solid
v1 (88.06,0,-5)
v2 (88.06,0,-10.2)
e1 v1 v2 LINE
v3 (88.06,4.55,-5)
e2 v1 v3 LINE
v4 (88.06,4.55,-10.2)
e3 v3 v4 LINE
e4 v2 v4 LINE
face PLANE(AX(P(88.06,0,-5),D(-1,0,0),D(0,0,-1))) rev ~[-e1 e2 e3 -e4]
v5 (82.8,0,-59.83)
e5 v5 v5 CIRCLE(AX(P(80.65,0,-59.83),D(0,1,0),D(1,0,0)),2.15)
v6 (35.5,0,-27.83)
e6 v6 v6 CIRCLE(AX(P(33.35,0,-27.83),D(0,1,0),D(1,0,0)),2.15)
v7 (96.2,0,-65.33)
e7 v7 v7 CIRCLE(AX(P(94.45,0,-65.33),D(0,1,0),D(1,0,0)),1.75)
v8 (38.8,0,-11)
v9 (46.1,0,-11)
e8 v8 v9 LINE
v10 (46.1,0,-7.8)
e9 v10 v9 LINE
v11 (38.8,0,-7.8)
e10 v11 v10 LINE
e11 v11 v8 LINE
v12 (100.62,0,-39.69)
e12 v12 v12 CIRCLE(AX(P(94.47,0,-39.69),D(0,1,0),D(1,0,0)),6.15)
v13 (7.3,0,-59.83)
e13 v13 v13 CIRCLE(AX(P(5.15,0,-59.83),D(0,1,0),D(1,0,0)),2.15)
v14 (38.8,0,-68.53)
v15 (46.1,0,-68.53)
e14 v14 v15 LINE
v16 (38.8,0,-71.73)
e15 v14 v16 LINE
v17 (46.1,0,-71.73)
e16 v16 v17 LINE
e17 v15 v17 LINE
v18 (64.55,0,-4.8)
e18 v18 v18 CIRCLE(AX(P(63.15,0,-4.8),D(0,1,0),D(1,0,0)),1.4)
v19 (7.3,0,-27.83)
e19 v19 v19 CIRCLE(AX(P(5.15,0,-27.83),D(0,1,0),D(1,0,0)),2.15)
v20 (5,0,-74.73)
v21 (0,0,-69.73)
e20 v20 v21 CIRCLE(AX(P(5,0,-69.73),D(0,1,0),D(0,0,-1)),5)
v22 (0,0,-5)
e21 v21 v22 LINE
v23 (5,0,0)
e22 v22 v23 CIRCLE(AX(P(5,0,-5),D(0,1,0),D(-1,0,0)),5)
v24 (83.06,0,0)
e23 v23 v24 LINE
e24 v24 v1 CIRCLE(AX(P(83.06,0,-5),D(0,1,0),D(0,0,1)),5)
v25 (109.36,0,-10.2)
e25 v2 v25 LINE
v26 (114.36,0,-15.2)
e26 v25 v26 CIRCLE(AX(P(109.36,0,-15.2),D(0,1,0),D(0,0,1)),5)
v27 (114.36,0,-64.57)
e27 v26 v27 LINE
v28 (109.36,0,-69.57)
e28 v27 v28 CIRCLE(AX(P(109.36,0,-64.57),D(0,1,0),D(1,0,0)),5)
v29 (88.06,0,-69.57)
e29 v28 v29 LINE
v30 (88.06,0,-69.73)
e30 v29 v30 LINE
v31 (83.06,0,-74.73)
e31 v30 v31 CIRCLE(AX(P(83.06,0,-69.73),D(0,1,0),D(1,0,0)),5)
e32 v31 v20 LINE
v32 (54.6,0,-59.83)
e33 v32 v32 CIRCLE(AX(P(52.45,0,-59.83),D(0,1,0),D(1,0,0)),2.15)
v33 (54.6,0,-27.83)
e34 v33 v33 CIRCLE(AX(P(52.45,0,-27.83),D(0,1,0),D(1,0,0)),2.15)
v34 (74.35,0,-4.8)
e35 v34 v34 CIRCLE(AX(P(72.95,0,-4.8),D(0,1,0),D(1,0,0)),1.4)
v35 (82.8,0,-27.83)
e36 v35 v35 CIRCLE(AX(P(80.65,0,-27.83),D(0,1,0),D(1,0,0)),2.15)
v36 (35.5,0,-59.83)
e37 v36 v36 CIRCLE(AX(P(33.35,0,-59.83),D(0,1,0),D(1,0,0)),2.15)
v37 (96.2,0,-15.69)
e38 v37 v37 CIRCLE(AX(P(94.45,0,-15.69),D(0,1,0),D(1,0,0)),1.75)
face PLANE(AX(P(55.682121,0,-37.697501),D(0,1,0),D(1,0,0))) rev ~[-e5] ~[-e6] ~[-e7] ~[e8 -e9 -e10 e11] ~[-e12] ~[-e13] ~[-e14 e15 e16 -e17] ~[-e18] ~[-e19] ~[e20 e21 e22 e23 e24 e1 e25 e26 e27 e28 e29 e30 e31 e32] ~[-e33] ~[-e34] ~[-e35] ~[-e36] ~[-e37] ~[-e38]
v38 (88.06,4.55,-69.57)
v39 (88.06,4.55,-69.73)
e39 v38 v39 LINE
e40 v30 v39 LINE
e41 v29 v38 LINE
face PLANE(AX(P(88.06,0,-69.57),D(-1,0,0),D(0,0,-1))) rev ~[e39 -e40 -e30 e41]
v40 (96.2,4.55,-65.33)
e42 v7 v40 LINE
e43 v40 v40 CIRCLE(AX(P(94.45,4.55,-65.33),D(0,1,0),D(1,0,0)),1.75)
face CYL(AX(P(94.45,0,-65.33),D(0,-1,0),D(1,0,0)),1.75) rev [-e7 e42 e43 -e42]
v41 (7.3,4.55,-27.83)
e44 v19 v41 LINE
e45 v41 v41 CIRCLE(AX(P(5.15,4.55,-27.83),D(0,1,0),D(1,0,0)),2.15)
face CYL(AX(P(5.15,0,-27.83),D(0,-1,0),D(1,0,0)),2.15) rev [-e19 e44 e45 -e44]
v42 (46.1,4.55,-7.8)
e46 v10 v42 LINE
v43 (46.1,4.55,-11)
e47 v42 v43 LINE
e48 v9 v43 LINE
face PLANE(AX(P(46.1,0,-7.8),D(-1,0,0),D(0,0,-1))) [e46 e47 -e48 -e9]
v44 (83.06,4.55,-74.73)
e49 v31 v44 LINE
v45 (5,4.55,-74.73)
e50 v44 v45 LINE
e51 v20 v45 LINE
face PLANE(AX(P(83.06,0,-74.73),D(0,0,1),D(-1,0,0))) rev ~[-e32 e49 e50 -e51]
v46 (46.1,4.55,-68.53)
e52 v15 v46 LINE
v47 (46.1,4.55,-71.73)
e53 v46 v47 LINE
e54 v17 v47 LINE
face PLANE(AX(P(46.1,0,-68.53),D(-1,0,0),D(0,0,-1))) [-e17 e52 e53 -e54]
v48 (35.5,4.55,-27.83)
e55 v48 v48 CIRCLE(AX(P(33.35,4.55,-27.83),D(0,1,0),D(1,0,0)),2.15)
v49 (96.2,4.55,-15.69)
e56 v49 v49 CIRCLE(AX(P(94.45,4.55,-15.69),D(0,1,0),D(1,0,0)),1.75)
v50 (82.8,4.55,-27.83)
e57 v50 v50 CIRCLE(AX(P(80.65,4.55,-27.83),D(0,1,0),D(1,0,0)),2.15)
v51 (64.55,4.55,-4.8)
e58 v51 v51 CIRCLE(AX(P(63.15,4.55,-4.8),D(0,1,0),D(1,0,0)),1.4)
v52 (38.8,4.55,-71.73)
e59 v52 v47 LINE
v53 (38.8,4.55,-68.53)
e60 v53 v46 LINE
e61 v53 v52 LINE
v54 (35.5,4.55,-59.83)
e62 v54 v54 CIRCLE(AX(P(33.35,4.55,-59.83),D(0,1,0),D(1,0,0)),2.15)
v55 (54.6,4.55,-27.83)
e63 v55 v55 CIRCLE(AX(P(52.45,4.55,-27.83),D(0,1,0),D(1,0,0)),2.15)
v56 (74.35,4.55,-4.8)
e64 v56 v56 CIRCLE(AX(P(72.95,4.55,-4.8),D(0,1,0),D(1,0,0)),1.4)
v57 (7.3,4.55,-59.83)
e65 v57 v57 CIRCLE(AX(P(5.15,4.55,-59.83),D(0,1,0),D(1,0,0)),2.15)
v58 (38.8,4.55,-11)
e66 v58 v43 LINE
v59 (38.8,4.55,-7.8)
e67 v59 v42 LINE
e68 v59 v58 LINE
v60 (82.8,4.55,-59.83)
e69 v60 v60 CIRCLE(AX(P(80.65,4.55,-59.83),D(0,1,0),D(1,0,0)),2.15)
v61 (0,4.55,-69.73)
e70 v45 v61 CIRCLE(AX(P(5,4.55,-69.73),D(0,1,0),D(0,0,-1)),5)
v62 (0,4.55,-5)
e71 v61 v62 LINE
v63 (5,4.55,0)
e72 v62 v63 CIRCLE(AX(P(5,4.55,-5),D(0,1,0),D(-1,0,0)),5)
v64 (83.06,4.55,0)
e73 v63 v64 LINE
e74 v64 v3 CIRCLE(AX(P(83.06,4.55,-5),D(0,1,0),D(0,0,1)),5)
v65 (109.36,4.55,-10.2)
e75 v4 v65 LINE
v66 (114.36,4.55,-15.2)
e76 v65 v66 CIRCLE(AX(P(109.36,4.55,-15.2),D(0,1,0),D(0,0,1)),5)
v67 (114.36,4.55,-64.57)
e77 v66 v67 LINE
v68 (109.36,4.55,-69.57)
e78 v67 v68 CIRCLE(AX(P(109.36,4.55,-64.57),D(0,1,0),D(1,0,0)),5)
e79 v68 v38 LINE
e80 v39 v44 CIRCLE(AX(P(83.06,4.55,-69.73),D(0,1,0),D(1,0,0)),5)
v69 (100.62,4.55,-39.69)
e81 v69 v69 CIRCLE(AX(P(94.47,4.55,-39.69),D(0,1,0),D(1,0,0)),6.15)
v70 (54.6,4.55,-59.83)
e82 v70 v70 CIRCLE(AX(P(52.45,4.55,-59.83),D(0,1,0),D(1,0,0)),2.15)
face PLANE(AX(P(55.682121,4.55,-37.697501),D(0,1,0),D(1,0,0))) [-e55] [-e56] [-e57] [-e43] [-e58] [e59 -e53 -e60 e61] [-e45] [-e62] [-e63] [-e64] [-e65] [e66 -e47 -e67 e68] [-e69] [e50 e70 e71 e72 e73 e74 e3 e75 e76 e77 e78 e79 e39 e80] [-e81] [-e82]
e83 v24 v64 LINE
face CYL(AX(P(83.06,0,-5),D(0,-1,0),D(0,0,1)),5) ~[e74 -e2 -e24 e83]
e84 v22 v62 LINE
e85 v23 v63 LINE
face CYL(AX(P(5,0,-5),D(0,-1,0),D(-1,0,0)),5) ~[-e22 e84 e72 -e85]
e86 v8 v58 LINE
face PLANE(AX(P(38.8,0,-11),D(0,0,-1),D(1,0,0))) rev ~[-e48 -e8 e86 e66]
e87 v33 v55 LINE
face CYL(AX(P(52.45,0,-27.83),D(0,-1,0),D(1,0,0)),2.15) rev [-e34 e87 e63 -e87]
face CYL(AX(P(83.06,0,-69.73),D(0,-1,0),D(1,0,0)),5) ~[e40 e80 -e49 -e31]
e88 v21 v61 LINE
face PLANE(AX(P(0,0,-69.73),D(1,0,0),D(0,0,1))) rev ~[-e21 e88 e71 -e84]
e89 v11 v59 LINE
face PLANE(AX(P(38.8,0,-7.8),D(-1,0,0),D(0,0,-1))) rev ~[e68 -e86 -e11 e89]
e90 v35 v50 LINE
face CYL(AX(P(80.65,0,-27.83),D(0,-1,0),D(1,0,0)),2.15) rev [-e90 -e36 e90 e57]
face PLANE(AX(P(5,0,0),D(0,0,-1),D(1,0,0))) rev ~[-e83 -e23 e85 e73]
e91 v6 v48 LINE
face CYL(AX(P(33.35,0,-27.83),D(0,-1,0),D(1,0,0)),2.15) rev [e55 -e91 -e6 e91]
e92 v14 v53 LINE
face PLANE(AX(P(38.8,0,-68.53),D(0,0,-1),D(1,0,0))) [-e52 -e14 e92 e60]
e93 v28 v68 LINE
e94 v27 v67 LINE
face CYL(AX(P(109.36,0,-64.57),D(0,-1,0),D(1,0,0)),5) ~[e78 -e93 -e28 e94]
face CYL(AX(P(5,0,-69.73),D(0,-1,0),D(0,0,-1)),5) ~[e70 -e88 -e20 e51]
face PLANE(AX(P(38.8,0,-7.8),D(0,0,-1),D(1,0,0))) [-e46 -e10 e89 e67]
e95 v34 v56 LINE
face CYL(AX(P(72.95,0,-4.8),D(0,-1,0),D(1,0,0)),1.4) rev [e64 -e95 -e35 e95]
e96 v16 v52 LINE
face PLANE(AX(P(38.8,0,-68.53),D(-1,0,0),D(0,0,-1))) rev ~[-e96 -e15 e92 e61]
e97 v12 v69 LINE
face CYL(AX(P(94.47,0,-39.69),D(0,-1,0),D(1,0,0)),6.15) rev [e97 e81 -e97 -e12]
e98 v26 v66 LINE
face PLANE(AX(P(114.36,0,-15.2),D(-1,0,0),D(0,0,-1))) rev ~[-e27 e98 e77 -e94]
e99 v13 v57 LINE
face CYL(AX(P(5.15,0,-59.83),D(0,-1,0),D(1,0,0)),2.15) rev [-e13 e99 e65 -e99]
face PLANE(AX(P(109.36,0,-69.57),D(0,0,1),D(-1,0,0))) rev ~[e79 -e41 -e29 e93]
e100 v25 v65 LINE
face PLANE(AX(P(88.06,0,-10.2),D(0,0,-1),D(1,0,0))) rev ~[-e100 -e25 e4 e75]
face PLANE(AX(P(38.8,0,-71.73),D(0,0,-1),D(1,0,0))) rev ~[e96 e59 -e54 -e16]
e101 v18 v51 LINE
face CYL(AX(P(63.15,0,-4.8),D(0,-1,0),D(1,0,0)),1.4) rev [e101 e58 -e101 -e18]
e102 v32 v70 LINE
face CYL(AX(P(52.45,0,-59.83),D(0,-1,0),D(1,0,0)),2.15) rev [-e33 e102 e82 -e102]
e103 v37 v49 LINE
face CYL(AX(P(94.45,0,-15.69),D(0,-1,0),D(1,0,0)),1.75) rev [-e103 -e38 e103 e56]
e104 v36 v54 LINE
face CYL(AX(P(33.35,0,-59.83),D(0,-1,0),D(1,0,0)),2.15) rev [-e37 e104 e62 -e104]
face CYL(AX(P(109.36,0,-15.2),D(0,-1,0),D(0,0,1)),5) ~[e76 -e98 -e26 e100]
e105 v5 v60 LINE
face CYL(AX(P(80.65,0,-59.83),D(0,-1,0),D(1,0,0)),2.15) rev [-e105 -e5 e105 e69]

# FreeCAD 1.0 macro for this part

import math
import FreeCAD as App
import Part
import Sketcher


def add_polygon(sketch, points):
    """Adds a closed chain of lines whose ends are joined by coincident constraints."""
    first, n = sketch.GeometryCount, len(points)
    for a, b in zip(points, points[1:] + points[:1]):
        sketch.addGeometry(Part.LineSegment(App.Vector(*a, 0), App.Vector(*b, 0)), False)
    for i in range(n):
        sketch.addConstraint(Sketcher.Constraint("Coincident", first + i, 2, first + (i + 1) % n, 1))

doc = App.newDocument("Part")
body = doc.addObject("PartDesign::Body", "Body")

sketch1 = body.newObject("Sketcher::SketchObject", "Sketch")
sketch1.AttachmentSupport = (doc.getObject("XZ_Plane"), [""])
sketch1.MapMode = "FlatFace"
sketch1.addGeometry(Part.LineSegment(App.Vector(5, 0, 0), App.Vector(83.06, 0, 0)), False)
sketch1.addGeometry(Part.ArcOfCircle(Part.Circle(App.Vector(83.06, -5, 0), App.Vector(0, 0, 1), 5), math.radians(0), math.radians(90)), False)
sketch1.addGeometry(Part.LineSegment(App.Vector(88.06, -5, 0), App.Vector(88.06, -10.2, 0)), False)
sketch1.addGeometry(Part.LineSegment(App.Vector(88.06, -10.2, 0), App.Vector(109.36, -10.2, 0)), False)
sketch1.addGeometry(Part.ArcOfCircle(Part.Circle(App.Vector(109.36, -15.2, 0), App.Vector(0, 0, 1), 5), math.radians(0), math.radians(90)), False)
sketch1.addGeometry(Part.LineSegment(App.Vector(114.36, -15.2, 0), App.Vector(114.36, -64.57, 0)), False)
sketch1.addGeometry(Part.ArcOfCircle(Part.Circle(App.Vector(109.36, -64.57, 0), App.Vector(0, 0, 1), 5), math.radians(-90), math.radians(0)), False)
sketch1.addGeometry(Part.LineSegment(App.Vector(109.36, -69.57, 0), App.Vector(88.06, -69.57, 0)), False)
sketch1.addGeometry(Part.LineSegment(App.Vector(88.06, -69.57, 0), App.Vector(88.06, -69.73, 0)), False)
sketch1.addGeometry(Part.ArcOfCircle(Part.Circle(App.Vector(83.06, -69.73, 0), App.Vector(0, 0, 1), 5), math.radians(-90), math.radians(0)), False)
sketch1.addGeometry(Part.LineSegment(App.Vector(83.06, -74.73, 0), App.Vector(5, -74.73, 0)), False)
sketch1.addGeometry(Part.ArcOfCircle(Part.Circle(App.Vector(5, -69.73, 0), App.Vector(0, 0, 1), 5), math.radians(180), math.radians(270)), False)
sketch1.addGeometry(Part.LineSegment(App.Vector(0, -69.73, 0), App.Vector(0, -5, 0)), False)
sketch1.addGeometry(Part.ArcOfCircle(Part.Circle(App.Vector(5, -5, 0), App.Vector(0, 0, 1), 5), math.radians(90), math.radians(180)), False)
add_polygon(sketch1, [(46.1, -7.8), (38.8, -7.8), (38.8, -11), (46.1, -11)])
sketch1.addGeometry(Part.Circle(App.Vector(5.15, -27.83, 0), App.Vector(0, 0, 1), 2.15), False)
sketch1.addGeometry(Part.Circle(App.Vector(33.35, -27.83, 0), App.Vector(0, 0, 1), 2.15), False)
sketch1.addGeometry(Part.Circle(App.Vector(63.15, -4.8, 0), App.Vector(0, 0, 1), 1.4), False)
sketch1.addGeometry(Part.Circle(App.Vector(72.95, -4.8, 0), App.Vector(0, 0, 1), 1.4), False)
sketch1.addGeometry(Part.Circle(App.Vector(94.45, -15.69, 0), App.Vector(0, 0, 1), 1.75), False)
sketch1.addGeometry(Part.Circle(App.Vector(52.45, -27.83, 0), App.Vector(0, 0, 1), 2.15), False)
sketch1.addGeometry(Part.Circle(App.Vector(80.65, -27.83, 0), App.Vector(0, 0, 1), 2.15), False)
sketch1.addGeometry(Part.Circle(App.Vector(5.15, -59.83, 0), App.Vector(0, 0, 1), 2.15), False)
sketch1.addGeometry(Part.Circle(App.Vector(33.35, -59.83, 0), App.Vector(0, 0, 1), 2.15), False)
add_polygon(sketch1, [(46.1, -68.53), (38.8, -68.53), (38.8, -71.73), (46.1, -71.73)])
sketch1.addGeometry(Part.Circle(App.Vector(94.47, -39.69, 0), App.Vector(0, 0, 1), 6.15), False)
sketch1.addGeometry(Part.Circle(App.Vector(52.45, -59.83, 0), App.Vector(0, 0, 1), 2.15), False)
sketch1.addGeometry(Part.Circle(App.Vector(80.65, -59.83, 0), App.Vector(0, 0, 1), 2.15), False)
sketch1.addGeometry(Part.Circle(App.Vector(94.45, -65.33, 0), App.Vector(0, 0, 1), 1.75), False)
sketch1.addConstraint([
    Sketcher.Constraint("Tangent", 0, 2, 1, 2),
    Sketcher.Constraint("Tangent", 1, 1, 2, 1),
    Sketcher.Constraint("Coincident", 2, 2, 3, 1),
    Sketcher.Constraint("Tangent", 3, 2, 4, 2),
    Sketcher.Constraint("Tangent", 4, 1, 5, 1),
    Sketcher.Constraint("Tangent", 5, 2, 6, 2),
    Sketcher.Constraint("Tangent", 6, 1, 7, 1),
    Sketcher.Constraint("Coincident", 7, 2, 8, 1),
    Sketcher.Constraint("Tangent", 8, 2, 9, 2),
    Sketcher.Constraint("Tangent", 9, 1, 10, 1),
    Sketcher.Constraint("Tangent", 10, 2, 11, 2),
    Sketcher.Constraint("Tangent", 11, 1, 12, 1),
    Sketcher.Constraint("Tangent", 12, 2, 13, 2),
    Sketcher.Constraint("Tangent", 13, 1, 0, 1),
    Sketcher.Constraint("Horizontal", 0),
    Sketcher.Constraint("Vertical", 2),
    Sketcher.Constraint("Horizontal", 3),
    Sketcher.Constraint("Vertical", 5),
    Sketcher.Constraint("Horizontal", 7),
    Sketcher.Constraint("Vertical", 8),
    Sketcher.Constraint("Horizontal", 10),
    Sketcher.Constraint("Vertical", 12),
    Sketcher.Constraint("Horizontal", 14),
    Sketcher.Constraint("Vertical", 15),
    Sketcher.Constraint("Horizontal", 16),
    Sketcher.Constraint("Vertical", 17),
    Sketcher.Constraint("Horizontal", 27),
    Sketcher.Constraint("Vertical", 28),
    Sketcher.Constraint("Horizontal", 29),
    Sketcher.Constraint("Vertical", 30),
    Sketcher.Constraint("Equal", 1, 4),
    Sketcher.Constraint("Equal", 4, 6),
    Sketcher.Constraint("Equal", 6, 9),
    Sketcher.Constraint("Equal", 9, 11),
    Sketcher.Constraint("Equal", 11, 13),
    Sketcher.Constraint("Equal", 18, 19),
    Sketcher.Constraint("Equal", 20, 21),
    Sketcher.Constraint("Equal", 19, 23),
    Sketcher.Constraint("Equal", 23, 24),
    Sketcher.Constraint("Equal", 24, 25),
    Sketcher.Constraint("Equal", 25, 26),
    Sketcher.Constraint("Equal", 26, 32),
    Sketcher.Constraint("Equal", 32, 33),
    Sketcher.Constraint("Equal", 22, 34),
    Sketcher.Constraint("PointOnObject", 0, 2, -1),
    Sketcher.Constraint("PointOnObject", 11, 1, -2),
    Sketcher.Constraint("Horizontal", 18, 3, 19, 3),
    Sketcher.Constraint("Horizontal", 20, 3, 21, 3),
    Sketcher.Constraint("Horizontal", 19, 3, 23, 3),
    Sketcher.Constraint("Horizontal", 23, 3, 24, 3),
    Sketcher.Constraint("Horizontal", 25, 3, 26, 3),
    Sketcher.Constraint("Horizontal", 26, 3, 32, 3),
    Sketcher.Constraint("Horizontal", 32, 3, 33, 3),
    Sketcher.Constraint("Vertical", 1, 3, 9, 3),
    Sketcher.Constraint("Vertical", 18, 3, 25, 3),
    Sketcher.Constraint("Vertical", 19, 3, 26, 3),
    Sketcher.Constraint("Vertical", 23, 3, 32, 3),
    Sketcher.Constraint("Vertical", 24, 3, 33, 3),
    Sketcher.Constraint("Vertical", 22, 3, 34, 3),
    Sketcher.Constraint("Vertical", 15, 2, 27, 2),
    Sketcher.Constraint("Vertical", 17, 2, 29, 2),
    Sketcher.Constraint("Equal", 17, 28),
    Sketcher.Constraint("Radius", 1, 5.0),
    Sketcher.Constraint("Diameter", 18, 4.3),
    Sketcher.Constraint("Diameter", 20, 2.8),
    Sketcher.Constraint("Diameter", 22, 3.5),
    Sketcher.Constraint("Diameter", 31, 12.3),
    Sketcher.Constraint("DistanceX", 3, 1, 3, 2, 21.3),
    Sketcher.Constraint("DistanceX", 14, 2, 14, 1, 7.3),
    Sketcher.Constraint("DistanceY", 2, 2, 2, 1, 5.2),
    Sketcher.Constraint("DistanceY", 15, 2, 15, 1, 3.2),
    Sketcher.Constraint("DistanceY", 15, 2, -1, 1, 11.0),
    Sketcher.Constraint("DistanceX", 18, 3, 20, 3, 58.0),
    Sketcher.Constraint("DistanceX", 23, 3, 22, 3, 42.0),
    Sketcher.Constraint("DistanceY", 25, 3, 18, 3, 32.0),
    Sketcher.Constraint("DistanceY", 31, 3, 22, 3, 24.0),
    Sketcher.Constraint("DistanceY", 14, 2, 20, 3, 3.0),
    Sketcher.Constraint("DistanceY", 28, 2, 11, 3, 2.0),
    Sketcher.Constraint("DistanceX", 0, 1, 0, 2, 78.06),
    Sketcher.Constraint("DistanceY", 5, 2, 5, 1, 49.37),
    Sketcher.Constraint("DistanceY", 8, 2, 8, 1, 0.16),
    Sketcher.Constraint("DistanceX", -1, 1, 14, 2, 38.8),
    Sketcher.Constraint("DistanceY", 11, 3, 18, 3, 41.9),
    Sketcher.Constraint("DistanceX", 18, 3, 19, 3, 28.2),
    Sketcher.Constraint("DistanceX", 20, 3, 21, 3, 9.8),
    Sketcher.Constraint("DistanceX", 21, 3, 22, 3, 21.5),
    Sketcher.Constraint("DistanceX", 24, 3, 22, 3, 13.8),
    Sketcher.Constraint("DistanceY", 9, 3, 34, 3, 4.4),
    Sketcher.Constraint("DistanceX", -1, 1, 18, 3, 5.15),
    Sketcher.Constraint("DistanceY", 22, 3, -1, 1, 15.69),
    Sketcher.Constraint("DistanceX", -1, 1, 31, 3, 94.47),
])
pad1 = body.newObject("PartDesign::Pad", "Pad")
pad1.Profile = sketch1
pad1.Length = 4.55
pad1.Reversed = True

doc.recompute()
